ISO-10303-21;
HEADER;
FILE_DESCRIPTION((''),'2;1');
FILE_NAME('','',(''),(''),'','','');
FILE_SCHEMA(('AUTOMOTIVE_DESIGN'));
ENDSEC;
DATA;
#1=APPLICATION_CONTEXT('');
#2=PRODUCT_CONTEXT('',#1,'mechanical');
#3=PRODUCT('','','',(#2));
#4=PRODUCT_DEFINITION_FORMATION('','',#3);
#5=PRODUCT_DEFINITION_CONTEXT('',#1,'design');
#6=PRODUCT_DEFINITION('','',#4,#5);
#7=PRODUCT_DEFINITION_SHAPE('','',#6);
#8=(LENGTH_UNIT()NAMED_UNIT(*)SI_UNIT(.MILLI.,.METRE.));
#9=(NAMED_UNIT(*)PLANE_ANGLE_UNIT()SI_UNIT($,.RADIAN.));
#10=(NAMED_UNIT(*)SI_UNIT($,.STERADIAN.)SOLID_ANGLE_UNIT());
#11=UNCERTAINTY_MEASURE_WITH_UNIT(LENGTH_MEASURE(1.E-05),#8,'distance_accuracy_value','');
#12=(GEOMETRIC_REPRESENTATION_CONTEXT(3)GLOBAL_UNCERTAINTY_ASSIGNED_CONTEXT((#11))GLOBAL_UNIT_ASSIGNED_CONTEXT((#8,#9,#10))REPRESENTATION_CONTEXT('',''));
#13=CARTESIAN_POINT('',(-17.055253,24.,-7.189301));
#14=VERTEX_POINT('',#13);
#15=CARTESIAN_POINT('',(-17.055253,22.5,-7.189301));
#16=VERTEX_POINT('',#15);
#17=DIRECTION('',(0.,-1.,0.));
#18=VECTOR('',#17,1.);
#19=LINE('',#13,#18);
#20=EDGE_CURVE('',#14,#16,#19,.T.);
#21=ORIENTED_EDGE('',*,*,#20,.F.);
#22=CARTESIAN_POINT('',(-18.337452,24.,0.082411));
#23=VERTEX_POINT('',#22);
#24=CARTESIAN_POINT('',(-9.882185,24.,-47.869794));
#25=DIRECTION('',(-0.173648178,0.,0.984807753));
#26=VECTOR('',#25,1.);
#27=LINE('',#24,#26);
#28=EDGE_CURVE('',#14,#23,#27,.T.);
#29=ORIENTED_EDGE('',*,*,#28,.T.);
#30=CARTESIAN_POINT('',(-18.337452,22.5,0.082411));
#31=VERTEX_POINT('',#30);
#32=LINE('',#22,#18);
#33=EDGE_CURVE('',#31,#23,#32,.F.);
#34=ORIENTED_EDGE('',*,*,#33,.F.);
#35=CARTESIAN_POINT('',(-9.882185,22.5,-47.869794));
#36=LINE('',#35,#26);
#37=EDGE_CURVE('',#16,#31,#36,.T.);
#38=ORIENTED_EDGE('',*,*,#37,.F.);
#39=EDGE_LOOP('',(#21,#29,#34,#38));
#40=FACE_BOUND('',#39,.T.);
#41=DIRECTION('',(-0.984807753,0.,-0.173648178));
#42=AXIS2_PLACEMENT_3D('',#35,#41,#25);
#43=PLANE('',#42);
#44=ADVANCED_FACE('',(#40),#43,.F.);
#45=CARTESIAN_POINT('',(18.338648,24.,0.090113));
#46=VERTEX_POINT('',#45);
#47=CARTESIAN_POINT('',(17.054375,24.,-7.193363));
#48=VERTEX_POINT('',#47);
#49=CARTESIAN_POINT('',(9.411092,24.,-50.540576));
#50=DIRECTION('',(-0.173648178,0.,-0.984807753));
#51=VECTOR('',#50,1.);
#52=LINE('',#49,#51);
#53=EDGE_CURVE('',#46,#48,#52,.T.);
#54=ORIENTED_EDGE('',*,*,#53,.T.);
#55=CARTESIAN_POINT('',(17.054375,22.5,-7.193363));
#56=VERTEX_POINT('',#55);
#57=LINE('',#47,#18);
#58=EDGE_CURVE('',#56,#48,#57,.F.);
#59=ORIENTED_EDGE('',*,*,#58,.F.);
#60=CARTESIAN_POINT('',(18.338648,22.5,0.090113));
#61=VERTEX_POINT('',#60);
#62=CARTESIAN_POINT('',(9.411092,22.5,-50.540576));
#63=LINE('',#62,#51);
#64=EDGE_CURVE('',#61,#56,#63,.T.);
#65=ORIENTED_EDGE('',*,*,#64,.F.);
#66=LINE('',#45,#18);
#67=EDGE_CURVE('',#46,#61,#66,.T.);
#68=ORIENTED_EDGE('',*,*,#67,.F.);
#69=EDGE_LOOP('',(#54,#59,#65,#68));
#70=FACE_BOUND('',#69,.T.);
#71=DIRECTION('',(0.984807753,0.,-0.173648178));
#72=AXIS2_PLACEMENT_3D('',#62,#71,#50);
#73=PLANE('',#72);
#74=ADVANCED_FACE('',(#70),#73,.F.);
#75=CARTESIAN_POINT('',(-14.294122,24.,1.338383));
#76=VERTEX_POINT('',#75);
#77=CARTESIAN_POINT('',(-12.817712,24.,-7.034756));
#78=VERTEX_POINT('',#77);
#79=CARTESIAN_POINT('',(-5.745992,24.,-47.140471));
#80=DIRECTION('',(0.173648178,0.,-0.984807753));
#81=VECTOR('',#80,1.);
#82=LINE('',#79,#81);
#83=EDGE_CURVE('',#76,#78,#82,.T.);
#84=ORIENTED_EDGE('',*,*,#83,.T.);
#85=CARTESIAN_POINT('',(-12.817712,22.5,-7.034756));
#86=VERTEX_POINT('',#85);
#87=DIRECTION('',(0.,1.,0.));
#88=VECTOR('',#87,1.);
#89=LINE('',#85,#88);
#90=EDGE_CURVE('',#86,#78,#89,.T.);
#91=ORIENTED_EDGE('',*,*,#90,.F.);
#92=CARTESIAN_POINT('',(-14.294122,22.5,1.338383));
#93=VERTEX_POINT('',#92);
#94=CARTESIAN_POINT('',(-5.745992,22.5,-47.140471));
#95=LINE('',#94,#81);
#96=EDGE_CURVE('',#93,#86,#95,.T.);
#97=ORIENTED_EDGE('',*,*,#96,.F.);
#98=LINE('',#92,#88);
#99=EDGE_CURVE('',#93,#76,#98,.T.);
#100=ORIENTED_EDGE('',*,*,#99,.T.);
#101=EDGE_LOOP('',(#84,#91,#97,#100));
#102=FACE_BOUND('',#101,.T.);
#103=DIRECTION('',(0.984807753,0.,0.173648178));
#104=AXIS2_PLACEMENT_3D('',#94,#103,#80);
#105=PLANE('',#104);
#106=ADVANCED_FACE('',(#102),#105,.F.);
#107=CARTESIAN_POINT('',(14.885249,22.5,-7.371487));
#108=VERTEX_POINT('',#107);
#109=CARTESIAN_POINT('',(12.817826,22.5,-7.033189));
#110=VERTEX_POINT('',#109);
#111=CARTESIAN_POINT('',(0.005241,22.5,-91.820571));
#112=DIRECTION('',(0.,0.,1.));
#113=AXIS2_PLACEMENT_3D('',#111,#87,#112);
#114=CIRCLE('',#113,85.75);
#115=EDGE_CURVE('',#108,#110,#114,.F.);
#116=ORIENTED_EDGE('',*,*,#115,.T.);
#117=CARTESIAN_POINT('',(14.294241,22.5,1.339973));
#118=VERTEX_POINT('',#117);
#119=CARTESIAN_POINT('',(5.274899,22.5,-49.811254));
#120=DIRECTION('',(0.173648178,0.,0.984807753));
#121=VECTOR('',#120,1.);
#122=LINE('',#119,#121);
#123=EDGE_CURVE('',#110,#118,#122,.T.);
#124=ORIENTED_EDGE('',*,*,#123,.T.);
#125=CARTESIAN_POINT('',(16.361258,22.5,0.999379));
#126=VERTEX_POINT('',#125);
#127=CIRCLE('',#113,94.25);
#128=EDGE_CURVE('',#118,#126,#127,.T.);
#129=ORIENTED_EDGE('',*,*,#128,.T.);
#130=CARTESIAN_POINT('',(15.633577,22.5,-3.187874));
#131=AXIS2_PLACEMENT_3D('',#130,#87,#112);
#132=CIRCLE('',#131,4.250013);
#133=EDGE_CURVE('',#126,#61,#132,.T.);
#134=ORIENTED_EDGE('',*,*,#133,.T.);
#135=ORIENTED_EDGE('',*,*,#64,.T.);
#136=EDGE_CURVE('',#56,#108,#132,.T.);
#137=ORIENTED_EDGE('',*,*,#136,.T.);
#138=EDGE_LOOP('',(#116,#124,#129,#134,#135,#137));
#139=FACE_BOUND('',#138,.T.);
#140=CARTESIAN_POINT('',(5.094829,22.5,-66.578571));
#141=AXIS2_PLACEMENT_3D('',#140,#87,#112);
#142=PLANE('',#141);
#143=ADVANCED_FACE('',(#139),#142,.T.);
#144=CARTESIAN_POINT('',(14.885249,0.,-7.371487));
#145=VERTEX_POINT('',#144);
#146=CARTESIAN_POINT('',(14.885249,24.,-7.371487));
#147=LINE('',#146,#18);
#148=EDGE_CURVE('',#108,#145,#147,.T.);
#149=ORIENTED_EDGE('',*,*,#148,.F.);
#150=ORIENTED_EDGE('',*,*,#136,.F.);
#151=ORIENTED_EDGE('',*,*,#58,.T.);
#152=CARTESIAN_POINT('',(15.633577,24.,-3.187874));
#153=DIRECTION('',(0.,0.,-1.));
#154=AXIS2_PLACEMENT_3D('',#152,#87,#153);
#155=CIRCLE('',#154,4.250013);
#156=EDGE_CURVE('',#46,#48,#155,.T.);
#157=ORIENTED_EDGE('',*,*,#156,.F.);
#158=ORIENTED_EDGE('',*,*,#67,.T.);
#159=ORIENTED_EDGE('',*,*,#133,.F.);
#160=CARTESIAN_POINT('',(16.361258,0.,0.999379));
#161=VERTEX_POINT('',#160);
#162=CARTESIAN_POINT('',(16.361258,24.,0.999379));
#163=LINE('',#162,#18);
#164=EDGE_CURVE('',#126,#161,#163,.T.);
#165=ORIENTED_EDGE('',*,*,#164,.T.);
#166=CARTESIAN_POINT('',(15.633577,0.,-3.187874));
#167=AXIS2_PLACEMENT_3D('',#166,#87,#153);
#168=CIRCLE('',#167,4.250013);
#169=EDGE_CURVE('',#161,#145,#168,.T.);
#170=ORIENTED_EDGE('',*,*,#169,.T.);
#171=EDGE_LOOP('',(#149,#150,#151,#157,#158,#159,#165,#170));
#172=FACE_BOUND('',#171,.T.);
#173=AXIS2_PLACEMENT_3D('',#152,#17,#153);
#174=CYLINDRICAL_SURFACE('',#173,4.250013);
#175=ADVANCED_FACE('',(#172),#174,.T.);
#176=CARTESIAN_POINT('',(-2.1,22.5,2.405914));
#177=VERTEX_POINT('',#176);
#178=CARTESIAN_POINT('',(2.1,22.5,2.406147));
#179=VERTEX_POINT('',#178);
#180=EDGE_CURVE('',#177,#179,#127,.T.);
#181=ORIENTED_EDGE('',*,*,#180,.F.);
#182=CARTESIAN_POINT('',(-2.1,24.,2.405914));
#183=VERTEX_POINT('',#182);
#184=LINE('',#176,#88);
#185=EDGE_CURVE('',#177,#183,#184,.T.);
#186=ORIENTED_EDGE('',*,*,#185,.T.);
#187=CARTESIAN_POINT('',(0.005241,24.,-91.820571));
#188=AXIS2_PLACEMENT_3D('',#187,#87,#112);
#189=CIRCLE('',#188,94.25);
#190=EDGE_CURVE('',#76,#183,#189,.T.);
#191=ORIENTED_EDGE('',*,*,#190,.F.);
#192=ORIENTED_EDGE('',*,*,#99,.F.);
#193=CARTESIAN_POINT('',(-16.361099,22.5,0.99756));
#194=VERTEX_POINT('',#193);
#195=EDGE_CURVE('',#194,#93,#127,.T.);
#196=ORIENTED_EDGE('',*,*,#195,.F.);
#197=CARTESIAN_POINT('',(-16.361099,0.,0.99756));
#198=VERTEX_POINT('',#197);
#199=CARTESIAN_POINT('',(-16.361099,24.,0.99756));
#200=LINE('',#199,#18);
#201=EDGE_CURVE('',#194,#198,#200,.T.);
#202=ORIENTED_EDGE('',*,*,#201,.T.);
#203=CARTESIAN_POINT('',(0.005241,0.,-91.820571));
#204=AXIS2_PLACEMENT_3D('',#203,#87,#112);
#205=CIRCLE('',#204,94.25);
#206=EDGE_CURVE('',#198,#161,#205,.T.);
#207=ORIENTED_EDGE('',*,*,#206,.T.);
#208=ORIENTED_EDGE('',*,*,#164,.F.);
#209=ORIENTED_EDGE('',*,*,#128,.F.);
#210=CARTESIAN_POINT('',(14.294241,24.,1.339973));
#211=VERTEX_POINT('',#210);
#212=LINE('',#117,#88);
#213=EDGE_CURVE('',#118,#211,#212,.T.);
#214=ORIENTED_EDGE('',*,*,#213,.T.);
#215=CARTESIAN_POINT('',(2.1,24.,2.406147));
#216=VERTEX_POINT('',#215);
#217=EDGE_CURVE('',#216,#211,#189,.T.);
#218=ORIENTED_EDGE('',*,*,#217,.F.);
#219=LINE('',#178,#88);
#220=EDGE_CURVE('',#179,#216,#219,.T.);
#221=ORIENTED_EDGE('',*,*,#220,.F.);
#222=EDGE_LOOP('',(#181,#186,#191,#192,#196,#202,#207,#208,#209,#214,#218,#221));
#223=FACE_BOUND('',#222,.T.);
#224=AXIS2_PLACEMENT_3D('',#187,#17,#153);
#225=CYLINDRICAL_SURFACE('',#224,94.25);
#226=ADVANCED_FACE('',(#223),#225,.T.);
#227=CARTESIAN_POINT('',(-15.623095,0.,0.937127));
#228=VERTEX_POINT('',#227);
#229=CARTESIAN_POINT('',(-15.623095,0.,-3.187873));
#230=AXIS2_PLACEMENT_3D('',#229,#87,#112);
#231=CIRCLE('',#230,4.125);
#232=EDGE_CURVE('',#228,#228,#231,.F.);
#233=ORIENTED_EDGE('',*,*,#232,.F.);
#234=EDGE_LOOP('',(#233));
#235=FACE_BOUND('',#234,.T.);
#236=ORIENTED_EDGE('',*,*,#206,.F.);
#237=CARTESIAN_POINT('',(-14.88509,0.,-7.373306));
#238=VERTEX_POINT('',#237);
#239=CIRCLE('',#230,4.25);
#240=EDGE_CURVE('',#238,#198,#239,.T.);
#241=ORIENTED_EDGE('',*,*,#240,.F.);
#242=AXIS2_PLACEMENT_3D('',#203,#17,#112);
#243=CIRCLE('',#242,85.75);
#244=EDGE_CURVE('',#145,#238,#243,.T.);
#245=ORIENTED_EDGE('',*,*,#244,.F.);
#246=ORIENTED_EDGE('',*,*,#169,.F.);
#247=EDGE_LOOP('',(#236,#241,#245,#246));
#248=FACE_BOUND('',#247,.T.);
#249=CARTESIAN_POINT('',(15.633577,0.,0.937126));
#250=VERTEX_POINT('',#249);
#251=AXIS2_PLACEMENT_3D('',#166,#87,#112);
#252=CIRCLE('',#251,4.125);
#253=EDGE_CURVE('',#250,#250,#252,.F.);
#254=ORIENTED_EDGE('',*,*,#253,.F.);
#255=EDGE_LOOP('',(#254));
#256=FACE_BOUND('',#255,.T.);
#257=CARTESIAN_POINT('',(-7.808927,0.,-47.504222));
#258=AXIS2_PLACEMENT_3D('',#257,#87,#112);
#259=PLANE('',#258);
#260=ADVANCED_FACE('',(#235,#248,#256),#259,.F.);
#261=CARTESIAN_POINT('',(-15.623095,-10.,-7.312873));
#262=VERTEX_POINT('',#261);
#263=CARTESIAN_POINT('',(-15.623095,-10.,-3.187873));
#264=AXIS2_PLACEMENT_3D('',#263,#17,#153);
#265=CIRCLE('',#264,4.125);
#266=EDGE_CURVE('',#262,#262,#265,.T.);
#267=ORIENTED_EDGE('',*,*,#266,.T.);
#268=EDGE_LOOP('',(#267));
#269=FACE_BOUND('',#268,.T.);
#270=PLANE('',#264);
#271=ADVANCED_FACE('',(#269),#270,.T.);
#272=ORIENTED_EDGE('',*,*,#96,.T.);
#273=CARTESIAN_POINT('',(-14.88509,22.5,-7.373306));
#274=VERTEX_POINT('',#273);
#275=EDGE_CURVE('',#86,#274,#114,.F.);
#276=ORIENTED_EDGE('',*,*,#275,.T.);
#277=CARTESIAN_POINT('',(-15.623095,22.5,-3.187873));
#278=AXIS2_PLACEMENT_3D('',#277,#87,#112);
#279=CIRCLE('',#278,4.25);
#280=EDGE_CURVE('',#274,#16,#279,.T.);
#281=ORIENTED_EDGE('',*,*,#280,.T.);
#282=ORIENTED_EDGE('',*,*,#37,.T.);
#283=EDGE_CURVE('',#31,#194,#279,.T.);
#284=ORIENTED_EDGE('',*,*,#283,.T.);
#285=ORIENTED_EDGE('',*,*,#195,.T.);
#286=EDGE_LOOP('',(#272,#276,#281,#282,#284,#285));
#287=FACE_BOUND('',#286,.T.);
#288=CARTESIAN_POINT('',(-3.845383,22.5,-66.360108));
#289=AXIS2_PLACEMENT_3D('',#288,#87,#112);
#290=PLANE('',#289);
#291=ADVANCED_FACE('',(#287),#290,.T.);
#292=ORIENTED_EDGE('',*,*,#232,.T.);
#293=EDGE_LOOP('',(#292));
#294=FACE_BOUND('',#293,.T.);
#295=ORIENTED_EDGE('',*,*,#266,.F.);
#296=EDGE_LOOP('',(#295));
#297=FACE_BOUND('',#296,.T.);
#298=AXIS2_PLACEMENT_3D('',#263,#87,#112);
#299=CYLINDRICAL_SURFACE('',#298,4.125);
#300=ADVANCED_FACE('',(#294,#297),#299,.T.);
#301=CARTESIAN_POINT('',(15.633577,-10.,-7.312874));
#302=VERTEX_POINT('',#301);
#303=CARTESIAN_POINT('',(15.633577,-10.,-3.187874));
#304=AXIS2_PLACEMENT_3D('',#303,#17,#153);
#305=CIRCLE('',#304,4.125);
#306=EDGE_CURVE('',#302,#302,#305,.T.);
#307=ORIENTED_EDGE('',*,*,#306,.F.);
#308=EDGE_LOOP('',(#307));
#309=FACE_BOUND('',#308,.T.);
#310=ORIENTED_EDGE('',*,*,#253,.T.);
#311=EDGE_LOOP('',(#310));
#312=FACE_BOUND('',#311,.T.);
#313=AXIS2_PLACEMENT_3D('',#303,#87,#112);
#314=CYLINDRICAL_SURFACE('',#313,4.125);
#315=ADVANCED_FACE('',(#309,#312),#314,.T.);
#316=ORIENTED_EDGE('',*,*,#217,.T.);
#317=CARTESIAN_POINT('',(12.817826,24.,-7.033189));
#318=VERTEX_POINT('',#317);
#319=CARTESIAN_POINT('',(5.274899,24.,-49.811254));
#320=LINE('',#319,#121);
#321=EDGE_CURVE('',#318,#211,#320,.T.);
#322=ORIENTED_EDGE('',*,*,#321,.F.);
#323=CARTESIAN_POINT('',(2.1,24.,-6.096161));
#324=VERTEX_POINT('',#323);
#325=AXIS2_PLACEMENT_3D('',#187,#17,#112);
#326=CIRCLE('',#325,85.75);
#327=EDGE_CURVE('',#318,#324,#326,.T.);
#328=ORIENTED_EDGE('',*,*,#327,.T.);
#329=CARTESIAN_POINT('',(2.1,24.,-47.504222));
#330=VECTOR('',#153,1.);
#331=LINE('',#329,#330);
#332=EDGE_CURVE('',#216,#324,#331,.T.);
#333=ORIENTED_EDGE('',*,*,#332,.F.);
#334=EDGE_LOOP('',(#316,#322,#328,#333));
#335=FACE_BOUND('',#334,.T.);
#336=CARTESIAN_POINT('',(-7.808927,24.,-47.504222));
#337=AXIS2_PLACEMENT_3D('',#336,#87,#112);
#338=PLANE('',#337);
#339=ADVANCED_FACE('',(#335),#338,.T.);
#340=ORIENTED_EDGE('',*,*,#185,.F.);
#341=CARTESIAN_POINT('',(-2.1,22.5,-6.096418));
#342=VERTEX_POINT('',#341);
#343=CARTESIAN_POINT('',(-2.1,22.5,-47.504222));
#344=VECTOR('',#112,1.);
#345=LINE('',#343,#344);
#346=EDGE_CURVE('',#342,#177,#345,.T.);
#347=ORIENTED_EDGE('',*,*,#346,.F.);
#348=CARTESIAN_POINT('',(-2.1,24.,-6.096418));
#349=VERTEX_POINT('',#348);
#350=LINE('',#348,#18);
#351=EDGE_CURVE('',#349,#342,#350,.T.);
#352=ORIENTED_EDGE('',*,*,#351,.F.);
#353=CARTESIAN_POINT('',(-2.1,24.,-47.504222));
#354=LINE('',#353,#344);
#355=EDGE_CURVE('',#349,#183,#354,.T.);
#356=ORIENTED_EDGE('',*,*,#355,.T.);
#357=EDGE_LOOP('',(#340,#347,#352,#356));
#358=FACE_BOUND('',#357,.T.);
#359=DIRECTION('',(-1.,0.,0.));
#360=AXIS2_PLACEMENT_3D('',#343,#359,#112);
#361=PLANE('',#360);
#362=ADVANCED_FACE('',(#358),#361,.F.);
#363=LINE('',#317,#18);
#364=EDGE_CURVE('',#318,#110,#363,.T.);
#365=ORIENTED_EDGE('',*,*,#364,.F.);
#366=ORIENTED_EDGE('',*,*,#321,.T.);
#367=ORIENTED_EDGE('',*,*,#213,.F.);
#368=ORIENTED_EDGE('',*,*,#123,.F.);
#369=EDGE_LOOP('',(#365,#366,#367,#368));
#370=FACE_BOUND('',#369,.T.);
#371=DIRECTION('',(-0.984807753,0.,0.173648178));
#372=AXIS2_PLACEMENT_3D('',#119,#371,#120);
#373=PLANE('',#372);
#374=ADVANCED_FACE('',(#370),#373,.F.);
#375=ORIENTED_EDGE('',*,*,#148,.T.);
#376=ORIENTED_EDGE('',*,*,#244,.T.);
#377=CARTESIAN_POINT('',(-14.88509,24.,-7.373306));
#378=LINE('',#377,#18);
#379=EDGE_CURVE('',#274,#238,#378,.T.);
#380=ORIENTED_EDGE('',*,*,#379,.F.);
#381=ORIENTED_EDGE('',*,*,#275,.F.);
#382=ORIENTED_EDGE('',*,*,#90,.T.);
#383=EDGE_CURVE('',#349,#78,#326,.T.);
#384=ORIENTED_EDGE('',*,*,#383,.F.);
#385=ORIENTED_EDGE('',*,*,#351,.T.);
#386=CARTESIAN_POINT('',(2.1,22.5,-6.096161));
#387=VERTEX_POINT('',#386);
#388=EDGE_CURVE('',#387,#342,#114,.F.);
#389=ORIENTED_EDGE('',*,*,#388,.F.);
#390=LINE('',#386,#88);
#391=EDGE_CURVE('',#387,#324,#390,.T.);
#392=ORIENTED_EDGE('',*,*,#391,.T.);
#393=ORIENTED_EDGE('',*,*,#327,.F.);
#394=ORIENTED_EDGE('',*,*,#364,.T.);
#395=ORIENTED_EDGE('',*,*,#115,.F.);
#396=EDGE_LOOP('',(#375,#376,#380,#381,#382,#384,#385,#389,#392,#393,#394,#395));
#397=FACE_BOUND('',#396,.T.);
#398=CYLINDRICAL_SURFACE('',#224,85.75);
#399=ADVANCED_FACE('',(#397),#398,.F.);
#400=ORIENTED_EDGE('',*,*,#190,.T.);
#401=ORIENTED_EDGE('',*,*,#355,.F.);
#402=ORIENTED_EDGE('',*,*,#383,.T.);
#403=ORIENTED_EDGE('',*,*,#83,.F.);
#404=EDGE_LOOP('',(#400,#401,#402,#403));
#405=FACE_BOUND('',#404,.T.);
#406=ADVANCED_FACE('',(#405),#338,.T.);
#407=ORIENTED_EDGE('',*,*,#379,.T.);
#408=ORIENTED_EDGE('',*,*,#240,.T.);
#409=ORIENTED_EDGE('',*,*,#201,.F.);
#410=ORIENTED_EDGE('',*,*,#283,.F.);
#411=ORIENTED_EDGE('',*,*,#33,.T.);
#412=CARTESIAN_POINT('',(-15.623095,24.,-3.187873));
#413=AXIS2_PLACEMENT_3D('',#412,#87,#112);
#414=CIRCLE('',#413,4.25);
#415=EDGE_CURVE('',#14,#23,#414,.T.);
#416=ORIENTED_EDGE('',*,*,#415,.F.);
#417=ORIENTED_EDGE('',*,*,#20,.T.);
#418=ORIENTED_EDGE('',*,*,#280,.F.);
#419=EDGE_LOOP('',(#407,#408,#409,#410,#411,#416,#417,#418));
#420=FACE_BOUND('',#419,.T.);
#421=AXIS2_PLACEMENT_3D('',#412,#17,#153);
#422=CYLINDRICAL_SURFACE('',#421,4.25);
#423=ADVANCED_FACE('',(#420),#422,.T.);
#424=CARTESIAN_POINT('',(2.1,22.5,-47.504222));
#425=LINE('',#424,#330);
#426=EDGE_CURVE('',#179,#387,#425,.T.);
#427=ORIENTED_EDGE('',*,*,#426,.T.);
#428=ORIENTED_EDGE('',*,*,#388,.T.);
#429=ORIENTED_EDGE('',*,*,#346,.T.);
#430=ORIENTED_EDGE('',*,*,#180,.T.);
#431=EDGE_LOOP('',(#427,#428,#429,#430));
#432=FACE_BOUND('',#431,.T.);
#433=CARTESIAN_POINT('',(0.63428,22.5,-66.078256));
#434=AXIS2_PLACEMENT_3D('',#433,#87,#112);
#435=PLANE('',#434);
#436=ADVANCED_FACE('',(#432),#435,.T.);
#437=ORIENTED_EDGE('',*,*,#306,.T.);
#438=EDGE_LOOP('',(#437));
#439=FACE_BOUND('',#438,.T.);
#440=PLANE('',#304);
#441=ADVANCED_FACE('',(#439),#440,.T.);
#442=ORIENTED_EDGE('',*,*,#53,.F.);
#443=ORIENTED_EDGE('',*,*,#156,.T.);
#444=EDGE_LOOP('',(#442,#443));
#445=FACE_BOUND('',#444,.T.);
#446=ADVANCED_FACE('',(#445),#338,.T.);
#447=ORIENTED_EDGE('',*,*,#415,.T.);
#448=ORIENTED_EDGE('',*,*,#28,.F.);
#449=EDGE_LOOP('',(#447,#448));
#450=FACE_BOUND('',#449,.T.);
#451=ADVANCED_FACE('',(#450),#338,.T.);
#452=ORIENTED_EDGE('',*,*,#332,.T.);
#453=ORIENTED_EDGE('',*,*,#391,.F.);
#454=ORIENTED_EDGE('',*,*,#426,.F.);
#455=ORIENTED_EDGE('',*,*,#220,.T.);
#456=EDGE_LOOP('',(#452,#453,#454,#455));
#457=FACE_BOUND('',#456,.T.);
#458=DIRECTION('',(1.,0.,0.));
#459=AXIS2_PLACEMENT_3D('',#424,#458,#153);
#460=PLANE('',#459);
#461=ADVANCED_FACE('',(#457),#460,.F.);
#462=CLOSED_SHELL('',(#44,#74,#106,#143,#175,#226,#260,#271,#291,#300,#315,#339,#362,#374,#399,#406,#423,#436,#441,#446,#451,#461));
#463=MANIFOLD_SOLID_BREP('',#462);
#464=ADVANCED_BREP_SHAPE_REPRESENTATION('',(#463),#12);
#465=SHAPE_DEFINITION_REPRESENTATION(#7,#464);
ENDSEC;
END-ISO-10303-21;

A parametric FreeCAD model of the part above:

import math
import FreeCAD as App
import Part
import Sketcher

V = App.Vector

doc = App.newDocument("Part")
body = doc.addObject("PartDesign::Body", "Body")

sketch1 = body.newObject("Sketcher::SketchObject", "Sketch")
sketch1.AttachmentSupport = (doc.getObject("XZ_Plane"), [""])
sketch1.MapMode = "FlatFace"
sketch1.addGeometry([
    Part.ArcOfCircle(Part.Circle(V(0.005241, -91.820571, 0), V(0, 0, 1), 94.25), math.radians(80.006373), math.radians(100)),
    Part.ArcOfCircle(Part.Circle(V(15.633577, -3.187874, 0), V(0, 0, 1), 4.250013), math.radians(-100.141322), math.radians(80.141322)),
    Part.ArcOfCircle(Part.Circle(V(0.005241, -91.820571, 0), V(0, 0, 1), 85.75), math.radians(80.007004), math.radians(100)),
    Part.ArcOfCircle(Part.Circle(V(-15.623095, -3.187873, 0), V(0, 0, 1), 4.25), math.radians(100), math.radians(280)),
], False)
sketch1.addConstraint([
    Sketcher.Constraint("Coincident", 0, 1, 1, 2),
    Sketcher.Constraint("Coincident", 1, 1, 2, 1),
    Sketcher.Constraint("Coincident", 2, 2, 3, 2),
    Sketcher.Constraint("Coincident", 3, 1, 0, 2),
    Sketcher.Constraint("Coincident", 2, 3, 0, 3),
    Sketcher.Constraint("Radius", 0, 94.25),
    Sketcher.Constraint("Radius", 2, 85.75),
    Sketcher.Constraint("Radius", 1, 4.250013),
    Sketcher.Constraint("DistanceX", 3, 1, -1, 1, 16.361099),
    Sketcher.Constraint("DistanceX", -1, 1, 0, 3, 0.005241),
    Sketcher.Constraint("DistanceY", 0, 3, -1, 1, 91.820571),
    Sketcher.Constraint("DistanceX", -1, 1, 0, 1, 16.361258),
    Sketcher.Constraint("DistanceX", -1, 1, 1, 1, 14.885249),
    Sketcher.Constraint("DistanceX", 2, 2, -1, 1, 14.88509),
    Sketcher.Constraint("DistanceX", 3, 3, 1, 3, 31.256672),
])
pad1 = body.newObject("PartDesign::Pad", "Pad")
pad1.Profile = sketch1
pad1.Length = 24
pad1.Reversed = True

sketch2 = body.newObject("Sketcher::SketchObject", "Sketch001")
sketch2.AttachmentSupport = (doc.getObject("XZ_Plane"), [""])
sketch2.MapMode = "FlatFace"
sketch2.addGeometry([
    Part.Circle(V(-15.6, -3.2, 0), V(0, 0, 1), 4.1),
    Part.Circle(V(15.6, -3.2, 0), V(0, 0, 1), 4.1),
], False)
sketch2.addConstraint([
    Sketcher.Constraint("Equal", 0, 1),
    Sketcher.Constraint("Horizontal", 0, 3, 1, 3),
    Sketcher.Constraint("Diameter", 0, 8.25),
    Sketcher.Constraint("DistanceX", 0, 3, 1, 3, 31.256672),
    Sketcher.Constraint("DistanceX", 0, 3, -1, 1, 15.623095),
    Sketcher.Constraint("DistanceY", 0, 3, -1, 1, 3.187873),
])
pad2 = body.newObject("PartDesign::Pad", "Pad001")
pad2.Profile = sketch2
pad2.Length = 10

sketch3 = body.newObject("Sketcher::SketchObject", "Sketch002")
sketch3.AttachmentSupport = (doc.getObject("XZ_Plane"), [""])
sketch3.MapMode = "FlatFace"
sketch3.AttachmentOffset = App.Placement(V(0, 0, -24), App.Rotation())
sketch3.addGeometry([
    Part.LineSegment(V(-2.1, 2.4, 0), V(-2.1, -6.1, 0)),
    Part.ArcOfCircle(Part.Circle(V(0.6, -66.1, 0), V(0, 0, 1), 60), math.radians(88.6), math.radians(92.61)),
    Part.LineSegment(V(2.1, -6.1, 0), V(2.1, 2.4, 0)),
    Part.ArcOfCircle(Part.Circle(V(0, -0.9, 0), V(0, 0, 1), 3.9), math.radians(57), math.radians(123)),
], False)
sketch3.addConstraint([
    Sketcher.Constraint("Coincident", 0, 2, 1, 2),
    Sketcher.Constraint("Coincident", 1, 1, 2, 1),
    Sketcher.Constraint("Coincident", 2, 2, 3, 1),
    Sketcher.Constraint("Coincident", 3, 2, 0, 1),
    Sketcher.Constraint("Vertical", 0),
    Sketcher.Constraint("Vertical", 2),
    Sketcher.Constraint("Radius", 1, 59.999999),
    Sketcher.Constraint("DistanceX", 0, 2, -1, 1, 2.1),
    Sketcher.Constraint("DistanceX", -1, 1, 1, 1, 2.1),
    Sketcher.Constraint("Radius", 3, 3.89579),
    Sketcher.Constraint("DistanceY", 2, 1, 2, 2, 8.502308),
    Sketcher.Constraint("DistanceY", 0, 2, 0, 1, 8.546504),
    Sketcher.Constraint("DistanceX", -1, 1, 1, 3, 0.63428),
    Sketcher.Constraint("DistanceY", 0, 2, -1, 1, 6.14059),
])
pocket1 = body.newObject("PartDesign::Pocket", "Pocket")
pocket1.Profile = sketch3
pocket1.Length = 1.5
pocket1.Reversed = True
doc.recompute()

datumline = body.newObject("PartDesign::Line", "DatumLine")
datumline.Placement = App.Placement(V(0.005241, 0, -91.820571), App.Rotation(V(0, 0, 1), V(0, 1, 0)))
polarpattern = body.newObject("PartDesign::PolarPattern", "PolarPattern")
polarpattern.Originals = [pocket1]
polarpattern.Axis = (datumline, [""])
polarpattern.Angle = 10
polarpattern.Occurrences = 2
body.Tip = polarpattern
doc.recompute()

datumline2 = body.newObject("PartDesign::Line", "DatumLine001")
datumline2.Placement = App.Placement(V(0.005241, 0, -91.820571), App.Rotation(V(0, 0, 1), V(0, -1, 0)))
polarpattern2 = body.newObject("PartDesign::PolarPattern", "PolarPattern001")
polarpattern2.Originals = [pocket1]
polarpattern2.Axis = (datumline2, [""])
polarpattern2.Angle = 10
polarpattern2.Occurrences = 2
body.Tip = polarpattern2

doc.recompute()
